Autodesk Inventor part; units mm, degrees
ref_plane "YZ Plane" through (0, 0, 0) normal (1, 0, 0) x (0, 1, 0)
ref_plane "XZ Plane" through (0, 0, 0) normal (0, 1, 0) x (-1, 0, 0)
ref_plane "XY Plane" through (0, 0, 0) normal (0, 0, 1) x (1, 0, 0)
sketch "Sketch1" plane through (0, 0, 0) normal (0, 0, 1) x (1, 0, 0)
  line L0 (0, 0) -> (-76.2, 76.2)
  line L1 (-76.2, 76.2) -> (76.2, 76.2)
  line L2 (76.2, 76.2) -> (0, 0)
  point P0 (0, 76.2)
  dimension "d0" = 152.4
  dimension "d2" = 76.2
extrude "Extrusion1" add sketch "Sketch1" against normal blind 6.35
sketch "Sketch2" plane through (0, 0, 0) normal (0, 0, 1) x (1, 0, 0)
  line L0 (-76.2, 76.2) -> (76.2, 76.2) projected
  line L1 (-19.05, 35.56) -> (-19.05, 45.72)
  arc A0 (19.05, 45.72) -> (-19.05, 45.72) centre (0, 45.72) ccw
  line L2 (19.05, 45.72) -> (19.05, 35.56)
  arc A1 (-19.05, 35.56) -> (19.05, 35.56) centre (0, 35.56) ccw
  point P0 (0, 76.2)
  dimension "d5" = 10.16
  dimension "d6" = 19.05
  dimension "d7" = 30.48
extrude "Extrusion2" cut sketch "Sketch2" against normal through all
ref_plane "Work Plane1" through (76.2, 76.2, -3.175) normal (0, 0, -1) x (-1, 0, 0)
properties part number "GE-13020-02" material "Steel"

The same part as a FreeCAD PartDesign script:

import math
import FreeCAD as App
import Part
import Sketcher
Q = App.Units.Quantity

doc = App.newDocument("Part")
body = doc.addObject("PartDesign::Body", "Body")

# Sketch on XY plane
sketch1 = body.newObject("Sketcher::SketchObject", "Sketch")
sketch1.AttachmentSupport = (doc.getObject("XY_Plane"), [""])
sketch1.MapMode = "FlatFace"
sketch1.addGeometry(Part.LineSegment(App.Vector(-76.2, 76.2, 0), App.Vector(0, 0, 0)), False)
sketch1.addGeometry(Part.LineSegment(App.Vector(0, 0, 0), App.Vector(76.2, 76.2, 0)), False)
sketch1.addGeometry(Part.LineSegment(App.Vector(76.2, 76.2, 0), App.Vector(-76.2, 76.2, 0)), False)
sketch1.addConstraint(Sketcher.Constraint("Coincident", 0, 2, 1, 1))
sketch1.addConstraint(Sketcher.Constraint("Coincident", 1, 2, 2, 1))
sketch1.addConstraint(Sketcher.Constraint("Coincident", 2, 2, 0, 1))
sketch1.addConstraint(Sketcher.Constraint("Horizontal", 2))
sketch1.addConstraint(Sketcher.Constraint("Coincident", 0, 2, -1, 1))
sketch1.addConstraint(Sketcher.Constraint("Perpendicular", 0, 1))
sketch1.addConstraint(Sketcher.Constraint("Equal", 0, 1))
sketch1.addConstraint(Sketcher.Constraint("DistanceX", 2, 2, 2, 1, Q("6 in")))
pad1 = body.newObject("PartDesign::Pad", "Pad")
pad1.Profile = sketch1
pad1.Length = Q("0.25 in")
pad1.Reversed = True

# Sketch on XY plane
sketch2 = body.newObject("Sketcher::SketchObject", "Sketch001")
sketch2.AttachmentSupport = (doc.getObject("XY_Plane"), [""])
sketch2.MapMode = "FlatFace"
sketch2.addGeometry(Part.LineSegment(App.Vector(-19.05, 45.72, 0), App.Vector(-19.05, 35.56, 0)), False)
sketch2.addGeometry(Part.ArcOfCircle(Part.Circle(App.Vector(0, 35.56, 0), App.Vector(0, 0, 1), 19.05), math.radians(180), math.radians(360)), False)
sketch2.addGeometry(Part.LineSegment(App.Vector(19.05, 35.56, 0), App.Vector(19.05, 45.72, 0)), False)
sketch2.addGeometry(Part.ArcOfCircle(Part.Circle(App.Vector(0, 45.72, 0), App.Vector(0, 0, 1), 19.05), math.radians(0), math.radians(180)), False)
sketch2.addConstraint(Sketcher.Constraint("Tangent", 0, 2, 1, 1))
sketch2.addConstraint(Sketcher.Constraint("Tangent", 1, 2, 2, 1))
sketch2.addConstraint(Sketcher.Constraint("Tangent", 2, 2, 3, 1))
sketch2.addConstraint(Sketcher.Constraint("Tangent", 3, 2, 0, 1))
sketch2.addConstraint(Sketcher.Constraint("Vertical", 0))
sketch2.addConstraint(Sketcher.Constraint("Vertical", 2))
sketch2.addConstraint(Sketcher.Constraint("PointOnObject", 1, 3, -2))
sketch2.addConstraint(Sketcher.Constraint("Radius", 1, Q("0.75 in")))
sketch2.addConstraint(Sketcher.Constraint("DistanceY", 0, 2, 0, 1, Q("0.4 in")))
sketch2.addConstraint(Sketcher.Constraint("DistanceY", -1, 1, 1, 3, Q("1.4 in")))
pocket1 = body.newObject("PartDesign::Pocket", "Pocket")
pocket1.Profile = sketch2
pocket1.Type = "ThroughAll"

doc.recompute()
